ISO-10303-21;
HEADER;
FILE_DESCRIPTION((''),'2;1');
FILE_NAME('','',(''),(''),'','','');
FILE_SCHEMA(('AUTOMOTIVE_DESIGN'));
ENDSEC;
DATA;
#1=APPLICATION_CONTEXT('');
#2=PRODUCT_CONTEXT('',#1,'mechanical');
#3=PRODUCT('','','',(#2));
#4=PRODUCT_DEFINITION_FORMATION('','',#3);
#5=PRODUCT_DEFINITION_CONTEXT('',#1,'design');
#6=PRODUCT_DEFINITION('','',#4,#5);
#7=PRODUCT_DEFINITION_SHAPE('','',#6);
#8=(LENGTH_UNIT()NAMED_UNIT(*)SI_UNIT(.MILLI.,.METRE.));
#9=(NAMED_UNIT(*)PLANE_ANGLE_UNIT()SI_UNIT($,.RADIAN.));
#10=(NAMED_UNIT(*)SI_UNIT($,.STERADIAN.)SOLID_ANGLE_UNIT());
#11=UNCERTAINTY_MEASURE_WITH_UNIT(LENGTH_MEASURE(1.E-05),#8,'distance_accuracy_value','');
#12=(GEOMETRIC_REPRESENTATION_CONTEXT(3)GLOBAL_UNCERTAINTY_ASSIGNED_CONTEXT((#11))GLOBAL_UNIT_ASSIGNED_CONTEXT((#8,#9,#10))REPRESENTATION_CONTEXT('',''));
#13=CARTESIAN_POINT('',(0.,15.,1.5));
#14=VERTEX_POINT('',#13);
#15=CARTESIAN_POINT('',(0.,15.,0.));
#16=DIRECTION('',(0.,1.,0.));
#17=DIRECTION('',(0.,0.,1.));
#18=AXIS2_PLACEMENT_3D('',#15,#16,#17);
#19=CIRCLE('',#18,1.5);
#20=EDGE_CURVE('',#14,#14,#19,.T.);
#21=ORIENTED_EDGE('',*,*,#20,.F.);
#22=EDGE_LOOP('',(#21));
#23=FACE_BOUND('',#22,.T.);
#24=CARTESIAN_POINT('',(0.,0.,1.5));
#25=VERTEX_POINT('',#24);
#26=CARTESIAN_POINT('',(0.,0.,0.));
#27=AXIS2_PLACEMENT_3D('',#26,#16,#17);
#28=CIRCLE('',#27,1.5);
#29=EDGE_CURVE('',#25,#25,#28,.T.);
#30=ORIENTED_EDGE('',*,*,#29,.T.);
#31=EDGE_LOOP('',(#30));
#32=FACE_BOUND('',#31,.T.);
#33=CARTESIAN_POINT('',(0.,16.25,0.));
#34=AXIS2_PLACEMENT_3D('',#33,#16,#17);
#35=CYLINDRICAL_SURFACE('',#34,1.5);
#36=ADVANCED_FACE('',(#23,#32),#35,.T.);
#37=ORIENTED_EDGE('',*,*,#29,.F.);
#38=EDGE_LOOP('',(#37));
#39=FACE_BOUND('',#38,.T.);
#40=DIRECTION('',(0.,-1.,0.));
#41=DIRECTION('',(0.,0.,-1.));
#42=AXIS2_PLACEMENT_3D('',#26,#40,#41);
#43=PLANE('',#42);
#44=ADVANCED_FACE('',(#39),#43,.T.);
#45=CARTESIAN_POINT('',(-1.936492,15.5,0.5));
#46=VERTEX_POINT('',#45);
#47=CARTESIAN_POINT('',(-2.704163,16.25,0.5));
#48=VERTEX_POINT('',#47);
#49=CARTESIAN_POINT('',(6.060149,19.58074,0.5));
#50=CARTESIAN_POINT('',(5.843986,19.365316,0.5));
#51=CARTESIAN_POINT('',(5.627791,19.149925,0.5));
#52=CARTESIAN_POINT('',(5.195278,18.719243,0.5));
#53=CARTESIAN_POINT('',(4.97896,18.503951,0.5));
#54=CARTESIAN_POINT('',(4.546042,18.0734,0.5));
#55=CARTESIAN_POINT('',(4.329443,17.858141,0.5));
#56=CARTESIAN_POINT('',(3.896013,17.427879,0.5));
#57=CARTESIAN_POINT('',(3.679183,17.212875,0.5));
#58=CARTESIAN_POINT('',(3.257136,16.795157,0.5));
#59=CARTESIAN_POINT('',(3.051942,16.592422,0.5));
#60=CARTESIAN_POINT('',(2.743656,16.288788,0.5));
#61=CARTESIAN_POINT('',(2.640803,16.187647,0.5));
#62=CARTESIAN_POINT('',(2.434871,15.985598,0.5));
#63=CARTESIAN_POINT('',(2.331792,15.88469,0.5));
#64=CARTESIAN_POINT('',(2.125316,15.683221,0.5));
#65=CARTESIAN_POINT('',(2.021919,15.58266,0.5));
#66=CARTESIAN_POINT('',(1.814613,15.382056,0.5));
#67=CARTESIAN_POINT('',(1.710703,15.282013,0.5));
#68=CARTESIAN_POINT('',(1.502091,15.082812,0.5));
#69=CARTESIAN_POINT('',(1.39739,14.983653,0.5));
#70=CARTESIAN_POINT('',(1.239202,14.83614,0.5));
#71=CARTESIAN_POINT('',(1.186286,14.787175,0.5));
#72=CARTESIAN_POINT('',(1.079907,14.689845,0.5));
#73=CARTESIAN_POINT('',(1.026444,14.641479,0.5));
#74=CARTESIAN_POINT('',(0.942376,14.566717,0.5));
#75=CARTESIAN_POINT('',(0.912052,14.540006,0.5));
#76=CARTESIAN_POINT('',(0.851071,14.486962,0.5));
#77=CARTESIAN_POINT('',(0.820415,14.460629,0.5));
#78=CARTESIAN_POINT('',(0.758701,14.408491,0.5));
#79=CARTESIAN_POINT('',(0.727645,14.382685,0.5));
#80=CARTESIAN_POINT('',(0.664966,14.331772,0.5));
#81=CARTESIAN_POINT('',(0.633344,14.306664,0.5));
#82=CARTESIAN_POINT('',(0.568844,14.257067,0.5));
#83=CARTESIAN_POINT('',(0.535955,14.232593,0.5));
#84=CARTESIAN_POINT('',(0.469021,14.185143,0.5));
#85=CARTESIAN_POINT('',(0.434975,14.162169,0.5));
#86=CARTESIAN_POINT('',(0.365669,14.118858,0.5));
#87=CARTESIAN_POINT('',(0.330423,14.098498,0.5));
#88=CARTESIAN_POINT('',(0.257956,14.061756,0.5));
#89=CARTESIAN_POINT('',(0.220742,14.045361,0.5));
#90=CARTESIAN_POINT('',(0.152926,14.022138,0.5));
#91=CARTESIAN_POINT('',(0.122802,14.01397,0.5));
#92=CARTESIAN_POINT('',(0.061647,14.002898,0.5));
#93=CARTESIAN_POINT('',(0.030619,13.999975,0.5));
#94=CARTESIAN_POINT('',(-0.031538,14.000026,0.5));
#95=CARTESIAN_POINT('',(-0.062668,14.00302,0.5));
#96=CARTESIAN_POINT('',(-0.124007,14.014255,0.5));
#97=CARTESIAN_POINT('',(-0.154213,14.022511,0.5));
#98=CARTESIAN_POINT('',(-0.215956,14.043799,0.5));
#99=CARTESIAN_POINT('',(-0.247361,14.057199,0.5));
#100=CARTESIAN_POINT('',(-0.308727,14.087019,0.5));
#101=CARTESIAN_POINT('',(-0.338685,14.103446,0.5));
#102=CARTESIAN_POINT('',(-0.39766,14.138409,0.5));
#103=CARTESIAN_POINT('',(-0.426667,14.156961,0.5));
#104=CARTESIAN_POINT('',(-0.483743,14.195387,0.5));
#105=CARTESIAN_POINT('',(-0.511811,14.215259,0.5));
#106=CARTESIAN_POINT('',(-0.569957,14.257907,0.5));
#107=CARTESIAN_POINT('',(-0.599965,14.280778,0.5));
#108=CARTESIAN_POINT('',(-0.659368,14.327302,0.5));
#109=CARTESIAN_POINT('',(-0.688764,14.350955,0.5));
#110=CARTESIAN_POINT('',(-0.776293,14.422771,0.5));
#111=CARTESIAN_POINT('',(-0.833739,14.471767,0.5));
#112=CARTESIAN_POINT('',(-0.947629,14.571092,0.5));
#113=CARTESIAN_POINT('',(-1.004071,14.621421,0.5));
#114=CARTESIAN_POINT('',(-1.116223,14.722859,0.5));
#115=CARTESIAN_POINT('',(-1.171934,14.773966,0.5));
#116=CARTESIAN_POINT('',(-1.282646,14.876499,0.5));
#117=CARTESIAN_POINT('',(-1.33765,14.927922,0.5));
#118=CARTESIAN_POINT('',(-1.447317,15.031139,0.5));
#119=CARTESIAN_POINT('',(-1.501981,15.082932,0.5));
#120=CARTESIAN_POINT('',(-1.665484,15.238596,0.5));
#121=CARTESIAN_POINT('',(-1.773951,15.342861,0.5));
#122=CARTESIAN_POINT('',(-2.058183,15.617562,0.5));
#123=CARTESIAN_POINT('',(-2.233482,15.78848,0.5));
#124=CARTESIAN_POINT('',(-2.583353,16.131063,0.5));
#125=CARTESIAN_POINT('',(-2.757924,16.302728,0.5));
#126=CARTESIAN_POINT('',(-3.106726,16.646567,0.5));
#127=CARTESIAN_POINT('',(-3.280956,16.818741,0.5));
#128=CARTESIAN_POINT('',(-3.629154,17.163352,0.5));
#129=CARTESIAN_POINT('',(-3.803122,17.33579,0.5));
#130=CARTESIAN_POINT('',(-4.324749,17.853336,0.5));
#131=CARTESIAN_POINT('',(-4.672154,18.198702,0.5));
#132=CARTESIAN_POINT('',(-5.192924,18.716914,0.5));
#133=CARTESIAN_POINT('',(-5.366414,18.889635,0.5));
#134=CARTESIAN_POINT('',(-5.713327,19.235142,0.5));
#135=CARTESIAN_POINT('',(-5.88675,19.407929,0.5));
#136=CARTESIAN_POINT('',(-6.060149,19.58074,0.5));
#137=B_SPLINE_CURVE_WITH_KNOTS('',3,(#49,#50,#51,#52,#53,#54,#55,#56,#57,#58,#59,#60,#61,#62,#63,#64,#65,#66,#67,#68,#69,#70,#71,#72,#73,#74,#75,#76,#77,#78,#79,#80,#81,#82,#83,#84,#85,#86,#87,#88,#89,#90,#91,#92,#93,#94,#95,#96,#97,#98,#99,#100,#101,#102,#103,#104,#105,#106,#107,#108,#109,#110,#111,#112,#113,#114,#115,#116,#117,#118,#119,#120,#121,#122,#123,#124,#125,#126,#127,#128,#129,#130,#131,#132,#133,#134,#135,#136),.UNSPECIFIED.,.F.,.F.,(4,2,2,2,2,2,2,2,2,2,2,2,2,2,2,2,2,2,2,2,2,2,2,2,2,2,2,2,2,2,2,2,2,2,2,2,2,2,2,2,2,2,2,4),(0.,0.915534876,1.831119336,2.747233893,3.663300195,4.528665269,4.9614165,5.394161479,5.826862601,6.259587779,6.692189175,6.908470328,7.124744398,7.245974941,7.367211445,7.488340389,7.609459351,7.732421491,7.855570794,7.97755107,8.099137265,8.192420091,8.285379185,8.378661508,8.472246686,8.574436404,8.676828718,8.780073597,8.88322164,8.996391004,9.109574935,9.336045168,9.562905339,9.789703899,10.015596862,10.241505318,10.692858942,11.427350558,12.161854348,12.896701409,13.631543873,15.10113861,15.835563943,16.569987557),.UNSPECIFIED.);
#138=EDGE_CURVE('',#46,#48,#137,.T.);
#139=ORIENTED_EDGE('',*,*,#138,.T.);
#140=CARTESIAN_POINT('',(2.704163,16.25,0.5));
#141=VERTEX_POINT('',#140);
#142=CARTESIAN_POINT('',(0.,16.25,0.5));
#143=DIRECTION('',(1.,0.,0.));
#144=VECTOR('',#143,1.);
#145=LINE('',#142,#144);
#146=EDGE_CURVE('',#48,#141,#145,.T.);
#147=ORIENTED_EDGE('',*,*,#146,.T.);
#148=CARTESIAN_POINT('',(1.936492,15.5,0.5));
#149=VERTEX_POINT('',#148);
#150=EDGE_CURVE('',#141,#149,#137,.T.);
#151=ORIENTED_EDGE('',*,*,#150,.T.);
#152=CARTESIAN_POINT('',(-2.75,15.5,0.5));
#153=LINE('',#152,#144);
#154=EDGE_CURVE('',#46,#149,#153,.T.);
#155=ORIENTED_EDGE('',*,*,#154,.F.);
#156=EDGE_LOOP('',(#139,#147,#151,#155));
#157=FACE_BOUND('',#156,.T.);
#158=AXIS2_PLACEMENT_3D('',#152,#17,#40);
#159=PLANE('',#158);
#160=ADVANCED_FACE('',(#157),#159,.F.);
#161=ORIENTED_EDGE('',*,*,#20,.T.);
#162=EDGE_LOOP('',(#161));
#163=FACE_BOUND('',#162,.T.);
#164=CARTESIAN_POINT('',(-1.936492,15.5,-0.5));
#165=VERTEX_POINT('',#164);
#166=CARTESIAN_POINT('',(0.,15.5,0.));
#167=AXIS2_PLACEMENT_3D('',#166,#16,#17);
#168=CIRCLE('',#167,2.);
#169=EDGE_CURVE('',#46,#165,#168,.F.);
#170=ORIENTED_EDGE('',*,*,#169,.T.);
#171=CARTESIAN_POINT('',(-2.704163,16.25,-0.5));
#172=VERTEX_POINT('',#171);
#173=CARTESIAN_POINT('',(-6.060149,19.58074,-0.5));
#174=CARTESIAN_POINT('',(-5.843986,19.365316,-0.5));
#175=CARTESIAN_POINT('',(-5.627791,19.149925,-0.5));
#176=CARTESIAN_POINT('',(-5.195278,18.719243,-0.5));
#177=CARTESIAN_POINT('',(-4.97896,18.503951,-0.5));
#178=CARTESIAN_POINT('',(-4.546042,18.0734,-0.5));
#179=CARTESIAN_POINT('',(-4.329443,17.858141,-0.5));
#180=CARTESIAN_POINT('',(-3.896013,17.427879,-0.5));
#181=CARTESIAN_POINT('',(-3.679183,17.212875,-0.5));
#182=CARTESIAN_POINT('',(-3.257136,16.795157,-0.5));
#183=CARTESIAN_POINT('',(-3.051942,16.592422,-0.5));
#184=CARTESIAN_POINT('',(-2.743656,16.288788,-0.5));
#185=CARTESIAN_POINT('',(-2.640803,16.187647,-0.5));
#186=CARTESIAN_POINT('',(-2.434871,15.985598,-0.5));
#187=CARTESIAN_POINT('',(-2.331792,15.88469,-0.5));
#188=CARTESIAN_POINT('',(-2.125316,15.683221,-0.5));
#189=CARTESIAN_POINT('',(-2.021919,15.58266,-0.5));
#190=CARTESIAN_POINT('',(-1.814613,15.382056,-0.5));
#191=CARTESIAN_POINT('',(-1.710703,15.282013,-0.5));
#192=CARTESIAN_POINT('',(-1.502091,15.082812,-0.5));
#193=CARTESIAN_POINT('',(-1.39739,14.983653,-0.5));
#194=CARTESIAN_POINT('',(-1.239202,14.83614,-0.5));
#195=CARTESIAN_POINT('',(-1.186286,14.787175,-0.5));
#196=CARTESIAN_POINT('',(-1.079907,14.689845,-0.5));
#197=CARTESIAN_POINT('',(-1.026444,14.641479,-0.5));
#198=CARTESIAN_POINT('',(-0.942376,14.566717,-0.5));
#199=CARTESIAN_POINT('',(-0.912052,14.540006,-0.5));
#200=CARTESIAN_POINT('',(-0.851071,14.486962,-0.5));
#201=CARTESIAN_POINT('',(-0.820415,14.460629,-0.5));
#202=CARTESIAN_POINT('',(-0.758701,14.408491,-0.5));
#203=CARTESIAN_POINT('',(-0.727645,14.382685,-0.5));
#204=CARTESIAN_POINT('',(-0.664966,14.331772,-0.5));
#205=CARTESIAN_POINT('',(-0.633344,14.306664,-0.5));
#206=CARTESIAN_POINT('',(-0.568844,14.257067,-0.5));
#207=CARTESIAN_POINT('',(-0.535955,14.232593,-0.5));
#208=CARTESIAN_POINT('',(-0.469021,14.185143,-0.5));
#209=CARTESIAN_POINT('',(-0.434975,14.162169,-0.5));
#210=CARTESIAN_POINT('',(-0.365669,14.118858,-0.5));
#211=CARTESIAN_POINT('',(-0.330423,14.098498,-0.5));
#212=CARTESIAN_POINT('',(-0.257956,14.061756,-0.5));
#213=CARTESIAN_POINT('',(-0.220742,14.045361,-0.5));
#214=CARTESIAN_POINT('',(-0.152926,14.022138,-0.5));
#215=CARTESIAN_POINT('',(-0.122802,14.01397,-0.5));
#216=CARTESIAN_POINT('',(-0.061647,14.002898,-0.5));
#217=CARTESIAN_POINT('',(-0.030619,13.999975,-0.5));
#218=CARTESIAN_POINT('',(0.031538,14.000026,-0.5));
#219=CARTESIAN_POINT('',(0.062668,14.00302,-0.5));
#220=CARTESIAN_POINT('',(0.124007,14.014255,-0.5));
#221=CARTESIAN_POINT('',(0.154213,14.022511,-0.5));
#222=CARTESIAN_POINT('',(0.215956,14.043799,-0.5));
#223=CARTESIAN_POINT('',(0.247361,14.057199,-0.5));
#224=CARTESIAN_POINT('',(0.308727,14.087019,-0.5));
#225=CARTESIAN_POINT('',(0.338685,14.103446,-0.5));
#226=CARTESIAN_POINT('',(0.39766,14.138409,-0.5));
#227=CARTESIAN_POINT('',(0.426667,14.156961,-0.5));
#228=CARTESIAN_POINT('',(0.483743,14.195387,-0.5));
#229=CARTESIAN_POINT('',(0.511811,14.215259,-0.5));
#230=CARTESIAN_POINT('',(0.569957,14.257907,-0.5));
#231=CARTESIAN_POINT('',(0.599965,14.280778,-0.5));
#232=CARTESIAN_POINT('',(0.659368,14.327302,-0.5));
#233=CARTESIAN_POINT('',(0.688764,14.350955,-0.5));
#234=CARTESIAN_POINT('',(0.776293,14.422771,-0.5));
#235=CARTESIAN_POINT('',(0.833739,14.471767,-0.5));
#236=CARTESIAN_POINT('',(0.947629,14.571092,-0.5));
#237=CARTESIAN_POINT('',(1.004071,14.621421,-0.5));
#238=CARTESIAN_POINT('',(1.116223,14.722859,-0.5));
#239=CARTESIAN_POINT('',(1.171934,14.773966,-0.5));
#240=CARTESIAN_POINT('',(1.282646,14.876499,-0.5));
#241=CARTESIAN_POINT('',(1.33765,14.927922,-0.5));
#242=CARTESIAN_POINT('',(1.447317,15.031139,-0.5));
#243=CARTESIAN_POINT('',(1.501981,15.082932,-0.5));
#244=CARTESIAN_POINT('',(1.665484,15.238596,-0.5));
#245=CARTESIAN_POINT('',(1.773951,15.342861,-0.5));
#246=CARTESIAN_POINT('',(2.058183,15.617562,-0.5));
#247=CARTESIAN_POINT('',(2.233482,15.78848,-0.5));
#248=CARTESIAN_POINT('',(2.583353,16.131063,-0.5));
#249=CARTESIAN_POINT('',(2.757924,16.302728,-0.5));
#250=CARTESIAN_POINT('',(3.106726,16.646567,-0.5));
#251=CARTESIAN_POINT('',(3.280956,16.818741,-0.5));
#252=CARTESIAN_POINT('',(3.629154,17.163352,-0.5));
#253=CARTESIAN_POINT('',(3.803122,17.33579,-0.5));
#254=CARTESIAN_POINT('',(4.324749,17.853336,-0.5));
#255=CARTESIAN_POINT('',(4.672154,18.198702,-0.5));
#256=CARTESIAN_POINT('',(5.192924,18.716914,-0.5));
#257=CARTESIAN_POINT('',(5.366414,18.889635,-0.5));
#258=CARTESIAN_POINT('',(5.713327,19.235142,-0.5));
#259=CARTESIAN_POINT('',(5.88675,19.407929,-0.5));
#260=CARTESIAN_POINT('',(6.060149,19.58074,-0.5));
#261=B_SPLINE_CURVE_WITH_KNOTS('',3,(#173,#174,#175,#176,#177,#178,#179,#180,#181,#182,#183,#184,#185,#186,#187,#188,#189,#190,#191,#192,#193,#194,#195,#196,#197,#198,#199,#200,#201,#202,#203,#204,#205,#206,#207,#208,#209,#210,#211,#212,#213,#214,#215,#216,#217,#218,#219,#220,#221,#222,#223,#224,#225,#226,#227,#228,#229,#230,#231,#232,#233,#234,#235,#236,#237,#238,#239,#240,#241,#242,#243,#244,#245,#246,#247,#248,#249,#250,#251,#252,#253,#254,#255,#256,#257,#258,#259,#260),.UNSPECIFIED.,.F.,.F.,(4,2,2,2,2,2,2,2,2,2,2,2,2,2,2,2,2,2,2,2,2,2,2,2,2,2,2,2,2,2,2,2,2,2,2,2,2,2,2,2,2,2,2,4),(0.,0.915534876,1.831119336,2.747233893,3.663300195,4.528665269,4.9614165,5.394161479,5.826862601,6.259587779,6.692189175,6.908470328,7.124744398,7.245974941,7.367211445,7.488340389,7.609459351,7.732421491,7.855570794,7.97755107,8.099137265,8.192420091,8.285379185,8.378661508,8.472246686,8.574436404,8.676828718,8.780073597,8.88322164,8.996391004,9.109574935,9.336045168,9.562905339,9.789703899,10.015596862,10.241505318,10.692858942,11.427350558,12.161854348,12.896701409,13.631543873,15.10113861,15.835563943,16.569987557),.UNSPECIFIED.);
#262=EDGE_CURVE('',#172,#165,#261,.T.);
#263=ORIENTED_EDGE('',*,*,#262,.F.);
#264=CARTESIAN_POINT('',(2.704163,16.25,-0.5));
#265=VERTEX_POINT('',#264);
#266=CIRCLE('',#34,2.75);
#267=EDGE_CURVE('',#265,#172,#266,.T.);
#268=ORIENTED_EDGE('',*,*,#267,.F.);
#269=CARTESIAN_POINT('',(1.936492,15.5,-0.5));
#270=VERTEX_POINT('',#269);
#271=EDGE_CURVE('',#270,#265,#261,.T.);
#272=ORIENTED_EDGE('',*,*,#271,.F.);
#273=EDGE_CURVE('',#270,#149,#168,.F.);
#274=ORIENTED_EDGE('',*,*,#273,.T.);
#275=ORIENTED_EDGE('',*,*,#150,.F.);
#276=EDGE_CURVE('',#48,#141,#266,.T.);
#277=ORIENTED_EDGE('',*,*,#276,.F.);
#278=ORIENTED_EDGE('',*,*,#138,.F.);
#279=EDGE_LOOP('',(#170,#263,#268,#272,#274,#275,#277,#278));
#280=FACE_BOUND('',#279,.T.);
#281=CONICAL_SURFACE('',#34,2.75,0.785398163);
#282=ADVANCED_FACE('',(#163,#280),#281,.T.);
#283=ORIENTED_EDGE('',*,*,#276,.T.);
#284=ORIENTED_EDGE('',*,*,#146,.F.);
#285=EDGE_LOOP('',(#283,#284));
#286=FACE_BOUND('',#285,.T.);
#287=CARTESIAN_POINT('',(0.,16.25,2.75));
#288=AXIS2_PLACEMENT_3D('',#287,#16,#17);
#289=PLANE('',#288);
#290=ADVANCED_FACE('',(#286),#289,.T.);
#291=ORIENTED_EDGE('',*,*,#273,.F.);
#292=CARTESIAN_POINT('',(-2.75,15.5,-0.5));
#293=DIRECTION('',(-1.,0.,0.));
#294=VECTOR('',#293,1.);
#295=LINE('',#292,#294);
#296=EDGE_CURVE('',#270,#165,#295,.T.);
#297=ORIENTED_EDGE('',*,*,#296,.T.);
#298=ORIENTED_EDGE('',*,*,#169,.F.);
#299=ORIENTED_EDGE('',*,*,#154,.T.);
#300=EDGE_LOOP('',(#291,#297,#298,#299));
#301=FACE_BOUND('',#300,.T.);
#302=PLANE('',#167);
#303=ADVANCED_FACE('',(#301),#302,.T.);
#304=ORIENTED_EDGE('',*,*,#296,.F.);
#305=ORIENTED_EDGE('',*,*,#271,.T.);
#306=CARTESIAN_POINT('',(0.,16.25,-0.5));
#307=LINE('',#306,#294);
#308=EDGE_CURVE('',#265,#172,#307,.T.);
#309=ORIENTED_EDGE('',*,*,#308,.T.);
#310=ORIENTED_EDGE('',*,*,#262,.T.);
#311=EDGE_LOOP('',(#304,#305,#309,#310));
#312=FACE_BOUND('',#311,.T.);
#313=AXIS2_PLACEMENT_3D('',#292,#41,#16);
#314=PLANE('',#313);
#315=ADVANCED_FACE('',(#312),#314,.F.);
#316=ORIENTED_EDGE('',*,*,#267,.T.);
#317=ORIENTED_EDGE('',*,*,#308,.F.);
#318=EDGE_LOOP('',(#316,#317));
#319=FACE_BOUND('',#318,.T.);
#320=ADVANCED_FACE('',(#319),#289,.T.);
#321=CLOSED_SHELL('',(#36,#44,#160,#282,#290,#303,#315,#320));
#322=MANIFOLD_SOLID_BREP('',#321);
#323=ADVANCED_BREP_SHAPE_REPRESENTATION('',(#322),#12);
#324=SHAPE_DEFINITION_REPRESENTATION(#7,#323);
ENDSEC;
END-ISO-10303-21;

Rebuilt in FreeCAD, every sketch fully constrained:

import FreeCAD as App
import Part
import Sketcher
from FreeCAD import Vector
Q = App.Units.Quantity

doc = App.newDocument("Part")
params = doc.addObject("Spreadsheet::Sheet", "Params")
for row, (alias, value) in enumerate([
    ("sketch1_width", "15 mm"),
    ("sketch1_height", "1.5 mm"),
    ("sketch1_width2", "16.25 mm"),
    ("revolution_angle", "360 deg"),
    ("sketch2_height", "1 mm"),
    ("sketch2_width", "5.5 mm"),
    ("pocket1_length", "0.75 mm"),
], start=1):
    params.set(f"A{row}", alias)
    params.set(f"B{row}", "=" + value)
    params.setAlias(f"B{row}", alias)

body = doc.addObject("PartDesign::Body", "Body")

# Sketch on YZ plane
sketch1 = doc.addObject("Sketcher::SketchObject", "Sketch")
body.addObject(sketch1)
sketch1.AttachmentSupport = (doc.YZ_Plane, [""])
sketch1.MapMode = "FlatFace"
sketch1.addGeometry([
    Part.LineSegment(Vector(0, 1.5, 0), Vector(0, 0, 0)),  # 0
    Part.LineSegment(Vector(0, 0, 0), Vector(16.2, 0, 0)),  # 1
    Part.LineSegment(Vector(16.2, 0, 0), Vector(16.2, 2.8, 0)),  # 2
    Part.LineSegment(Vector(16.2, 2.8, 0), Vector(15, 1.5, 0)),  # 3
    Part.LineSegment(Vector(15, 1.5, 0), Vector(0, 1.5, 0)),  # 4
], False)
sketch1.addConstraint([
    Sketcher.Constraint("Coincident", 0, 2, 1, 1),
    Sketcher.Constraint("Coincident", 1, 2, 2, 1),
    Sketcher.Constraint("Coincident", 2, 2, 3, 1),
    Sketcher.Constraint("Coincident", 3, 2, 4, 1),
    Sketcher.Constraint("Coincident", 4, 2, 0, 1),
    Sketcher.Constraint("Vertical", 0),
    Sketcher.Constraint("Horizontal", 1),
    Sketcher.Constraint("Vertical", 2),
    Sketcher.Constraint("Horizontal", 4),
    Sketcher.Constraint("Coincident", 0, 2, -1, 1),
    Sketcher.Constraint("DistanceX", 4, 2, 4, 1, Q("15 mm")),
    Sketcher.Constraint("Angle", 3, Q("-135 deg")),
    Sketcher.Constraint("DistanceY", 0, 2, 0, 1, Q("1.5 mm")),
    Sketcher.Constraint("DistanceX", 1, 1, 1, 2, Q("16.25 mm")),
])
sketch1.setExpression("Constraints[10]", "Params.sketch1_width")
sketch1.setExpression("Constraints[12]", "Params.sketch1_height")
sketch1.setExpression("Constraints[13]", "Params.sketch1_width2")
revolution = doc.addObject("PartDesign::Revolution", "Revolution")
body.addObject(revolution)
revolution.Profile = sketch1
revolution.ReferenceAxis = (sketch1, ["H_Axis"])
revolution.setExpression("Angle", "Params.revolution_angle")

# Sketch on XZ plane
sketch2 = doc.addObject("Sketcher::SketchObject", "Sketch001")
body.addObject(sketch2)
sketch2.AttachmentSupport = (doc.XZ_Plane, [""])
sketch2.MapMode = "FlatFace"
sketch2.AttachmentOffset = App.Placement(Vector(0, 0, -16.25), App.Rotation())
sketch2.addGeometry([
    Part.LineSegment(Vector(-2.8, -0.5, 0), Vector(-2.8, 0.5, 0)),
    Part.LineSegment(Vector(-2.8, 0.5, 0), Vector(2.8, 0.5, 0)),
    Part.LineSegment(Vector(2.8, 0.5, 0), Vector(2.8, -0.5, 0)),
    Part.LineSegment(Vector(2.8, -0.5, 0), Vector(-2.8, -0.5, 0)),
], False)
sketch2.addConstraint([
    Sketcher.Constraint("Coincident", 0, 2, 1, 1),
    Sketcher.Constraint("Coincident", 1, 2, 2, 1),
    Sketcher.Constraint("Coincident", 2, 2, 3, 1),
    Sketcher.Constraint("Coincident", 3, 2, 0, 1),
    Sketcher.Constraint("Vertical", 0),
    Sketcher.Constraint("Horizontal", 1),
    Sketcher.Constraint("Vertical", 2),
    Sketcher.Constraint("Horizontal", 3),
    Sketcher.Constraint("Symmetric", 0, 2, 2, 2, -1, 1),
    Sketcher.Constraint("DistanceY", 0, 1, 0, 2, Q("1 mm")),
    Sketcher.Constraint("DistanceX", 1, 1, 1, 2, Q("5.5 mm")),
])
sketch2.setExpression("Constraints[9]", "Params.sketch2_height")
sketch2.setExpression("Constraints[10]", "Params.sketch2_width")
pocket1 = doc.addObject("PartDesign::Pocket", "Pocket")
body.addObject(pocket1)
pocket1.Profile = sketch2
pocket1.setExpression("Length", "Params.pocket1_length")
pocket1.Reversed = True

doc.recompute()
